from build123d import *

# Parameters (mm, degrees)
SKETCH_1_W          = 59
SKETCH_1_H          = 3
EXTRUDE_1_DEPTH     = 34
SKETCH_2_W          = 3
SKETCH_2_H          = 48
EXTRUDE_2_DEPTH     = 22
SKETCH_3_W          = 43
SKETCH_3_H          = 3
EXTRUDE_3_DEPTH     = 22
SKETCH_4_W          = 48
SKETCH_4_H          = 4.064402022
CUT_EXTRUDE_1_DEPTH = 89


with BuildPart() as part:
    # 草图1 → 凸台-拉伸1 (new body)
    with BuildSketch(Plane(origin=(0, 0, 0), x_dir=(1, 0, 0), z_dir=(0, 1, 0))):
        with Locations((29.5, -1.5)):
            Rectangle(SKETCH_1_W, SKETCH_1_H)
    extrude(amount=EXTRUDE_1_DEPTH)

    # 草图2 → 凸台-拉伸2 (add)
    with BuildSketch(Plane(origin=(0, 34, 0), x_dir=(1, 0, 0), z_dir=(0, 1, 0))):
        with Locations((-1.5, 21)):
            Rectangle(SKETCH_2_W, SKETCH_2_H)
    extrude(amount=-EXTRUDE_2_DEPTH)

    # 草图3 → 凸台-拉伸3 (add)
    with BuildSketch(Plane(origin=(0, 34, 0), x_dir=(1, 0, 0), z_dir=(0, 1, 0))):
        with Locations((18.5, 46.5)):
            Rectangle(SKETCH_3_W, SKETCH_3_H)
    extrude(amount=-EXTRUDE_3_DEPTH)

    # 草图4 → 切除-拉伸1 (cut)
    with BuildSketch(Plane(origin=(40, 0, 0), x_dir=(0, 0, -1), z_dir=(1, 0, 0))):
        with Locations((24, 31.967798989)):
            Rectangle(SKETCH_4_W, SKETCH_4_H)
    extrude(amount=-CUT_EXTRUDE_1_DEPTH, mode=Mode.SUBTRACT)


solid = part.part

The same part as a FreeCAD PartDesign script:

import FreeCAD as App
import Part
import Sketcher

V = App.Vector

doc = App.newDocument("Part")
params = doc.addObject("Spreadsheet::Sheet", "Params")
for row, (alias, value) in enumerate([
    ("sketch1_width", "59 mm"),
    ("sketch1_height", "3 mm"),
    ("pad1_length", "34 mm"),
    ("sketch2_width", "3 mm"),
    ("sketch2_height", "48 mm"),
    ("pad2_length", "22 mm"),
    ("sketch3_width", "43 mm"),
    ("sketch3_height", "3 mm"),
    ("pad3_length", "22 mm"),
    ("sketch4_height", "48 mm"),
    ("pocket1_length", "89 mm"),
], start=1):
    params.set(f"A{row}", alias)
    params.set(f"B{row}", "=" + value)
    params.setAlias(f"B{row}", alias)

body = doc.addObject("PartDesign::Body", "Body")

sketch1 = body.newObject("Sketcher::SketchObject", "Sketch")
sketch1.AttachmentSupport = (doc.getObject("XZ_Plane"), [""])
sketch1.MapMode = "FlatFace"
sketch1.addGeometry([
    Part.LineSegment(V(0, 0, 0), V(0, 3, 0)),
    Part.LineSegment(V(0, 3, 0), V(59, 3, 0)),
    Part.LineSegment(V(59, 3, 0), V(59, 0, 0)),
    Part.LineSegment(V(59, 0, 0), V(0, 0, 0)),
], False)
sketch1.addConstraint([
    Sketcher.Constraint("Coincident", 0, 2, 1, 1),
    Sketcher.Constraint("Coincident", 1, 2, 2, 1),
    Sketcher.Constraint("Coincident", 2, 2, 3, 1),
    Sketcher.Constraint("Coincident", 3, 2, 0, 1),
    Sketcher.Constraint("Vertical", 0),
    Sketcher.Constraint("Horizontal", 1),
    Sketcher.Constraint("Vertical", 2),
    Sketcher.Constraint("Horizontal", 3),
    Sketcher.Constraint("Coincident", 3, 2, -1, 1),
    Sketcher.Constraint("DistanceX", 1, 1, 1, 2, 59.0),
    Sketcher.Constraint("DistanceY", 0, 1, 0, 2, 3.0),
])
sketch1.setExpression("Constraints[9]", "Params.sketch1_width")
sketch1.setExpression("Constraints[10]", "Params.sketch1_height")
pad1 = body.newObject("PartDesign::Pad", "Pad")
pad1.Profile = sketch1
pad1.setExpression("Length", "Params.pad1_length")
pad1.Reversed = True

sketch2 = body.newObject("Sketcher::SketchObject", "Sketch001")
sketch2.AttachmentSupport = (doc.getObject("XZ_Plane"), [""])
sketch2.MapMode = "FlatFace"
sketch2.AttachmentOffset = App.Placement(V(0, 0, -34), App.Rotation())
sketch2.addGeometry([
    Part.LineSegment(V(-3, -45, 0), V(-3, 3, 0)),
    Part.LineSegment(V(-3, 3, 0), V(0, 3, 0)),
    Part.LineSegment(V(0, 3, 0), V(0, -45, 0)),
    Part.LineSegment(V(0, -45, 0), V(-3, -45, 0)),
], False)
sketch2.addConstraint([
    Sketcher.Constraint("Coincident", 0, 2, 1, 1),
    Sketcher.Constraint("Coincident", 1, 2, 2, 1),
    Sketcher.Constraint("Coincident", 2, 2, 3, 1),
    Sketcher.Constraint("Coincident", 3, 2, 0, 1),
    Sketcher.Constraint("Vertical", 0),
    Sketcher.Constraint("Horizontal", 1),
    Sketcher.Constraint("Vertical", 2),
    Sketcher.Constraint("Horizontal", 3),
    Sketcher.Constraint("PointOnObject", 1, 2, -2),
    Sketcher.Constraint("DistanceX", 1, 1, 1, 2, 3.0),
    Sketcher.Constraint("DistanceY", 0, 1, 0, 2, 48.0),
    Sketcher.Constraint("DistanceY", -1, 1, 0, 2, 3.0),
])
sketch2.setExpression("Constraints[9]", "Params.sketch2_width")
sketch2.setExpression("Constraints[10]", "Params.sketch2_height")
pad2 = body.newObject("PartDesign::Pad", "Pad001")
pad2.Profile = sketch2
pad2.setExpression("Length", "Params.pad2_length")

sketch3 = body.newObject("Sketcher::SketchObject", "Sketch002")
sketch3.AttachmentSupport = (doc.getObject("XZ_Plane"), [""])
sketch3.MapMode = "FlatFace"
sketch3.AttachmentOffset = App.Placement(V(0, 0, -34), App.Rotation())
sketch3.addGeometry([
    Part.LineSegment(V(-3, -48, 0), V(-3, -45, 0)),
    Part.LineSegment(V(-3, -45, 0), V(40, -45, 0)),
    Part.LineSegment(V(40, -45, 0), V(40, -48, 0)),
    Part.LineSegment(V(40, -48, 0), V(-3, -48, 0)),
], False)
sketch3.addConstraint([
    Sketcher.Constraint("Coincident", 0, 2, 1, 1),
    Sketcher.Constraint("Coincident", 1, 2, 2, 1),
    Sketcher.Constraint("Coincident", 2, 2, 3, 1),
    Sketcher.Constraint("Coincident", 3, 2, 0, 1),
    Sketcher.Constraint("Vertical", 0),
    Sketcher.Constraint("Horizontal", 1),
    Sketcher.Constraint("Vertical", 2),
    Sketcher.Constraint("Horizontal", 3),
    Sketcher.Constraint("DistanceX", 1, 1, 1, 2, 43.0),
    Sketcher.Constraint("DistanceY", 0, 1, 0, 2, 3.0),
    Sketcher.Constraint("DistanceX", 0, 2, -1, 1, 3.0),
    Sketcher.Constraint("DistanceY", 0, 2, -1, 1, 45.0),
])
sketch3.setExpression("Constraints[8]", "Params.sketch3_width")
sketch3.setExpression("Constraints[9]", "Params.sketch3_height")
pad3 = body.newObject("PartDesign::Pad", "Pad002")
pad3.Profile = sketch3
pad3.setExpression("Length", "Params.pad3_length")

sketch4 = body.newObject("Sketcher::SketchObject", "Sketch003")
sketch4.AttachmentSupport = (doc.getObject("YZ_Plane"), [""])
sketch4.MapMode = "FlatFace"
sketch4.AttachmentOffset = App.Placement(V(0, 0, 40), App.Rotation())
sketch4.addGeometry([
    Part.LineSegment(V(34, 0, 0), V(29.935598, 0, 0)),
    Part.LineSegment(V(29.935598, 0, 0), V(29.935598, -48, 0)),
    Part.LineSegment(V(29.935598, -48, 0), V(34, -48, 0)),
    Part.LineSegment(V(34, -48, 0), V(34, 0, 0)),
], False)
sketch4.addConstraint([
    Sketcher.Constraint("Coincident", 0, 2, 1, 1),
    Sketcher.Constraint("Coincident", 1, 2, 2, 1),
    Sketcher.Constraint("Coincident", 2, 2, 3, 1),
    Sketcher.Constraint("Coincident", 3, 2, 0, 1),
    Sketcher.Constraint("Horizontal", 0),
    Sketcher.Constraint("Vertical", 1),
    Sketcher.Constraint("Horizontal", 2),
    Sketcher.Constraint("Vertical", 3),
    Sketcher.Constraint("PointOnObject", 0, 2, -1),
    Sketcher.Constraint("DistanceY", 1, 2, 1, 1, 48.0),
    Sketcher.Constraint("DistanceX", -1, 1, 2, 2, 34.0),
    Sketcher.Constraint("DistanceX", 0, 2, 0, 1, 4.064402),
])
sketch4.setExpression("Constraints[9]", "Params.sketch4_height")
pocket1 = body.newObject("PartDesign::Pocket", "Pocket")
pocket1.Profile = sketch4
pocket1.setExpression("Length", "Params.pocket1_length")

doc.recompute()
